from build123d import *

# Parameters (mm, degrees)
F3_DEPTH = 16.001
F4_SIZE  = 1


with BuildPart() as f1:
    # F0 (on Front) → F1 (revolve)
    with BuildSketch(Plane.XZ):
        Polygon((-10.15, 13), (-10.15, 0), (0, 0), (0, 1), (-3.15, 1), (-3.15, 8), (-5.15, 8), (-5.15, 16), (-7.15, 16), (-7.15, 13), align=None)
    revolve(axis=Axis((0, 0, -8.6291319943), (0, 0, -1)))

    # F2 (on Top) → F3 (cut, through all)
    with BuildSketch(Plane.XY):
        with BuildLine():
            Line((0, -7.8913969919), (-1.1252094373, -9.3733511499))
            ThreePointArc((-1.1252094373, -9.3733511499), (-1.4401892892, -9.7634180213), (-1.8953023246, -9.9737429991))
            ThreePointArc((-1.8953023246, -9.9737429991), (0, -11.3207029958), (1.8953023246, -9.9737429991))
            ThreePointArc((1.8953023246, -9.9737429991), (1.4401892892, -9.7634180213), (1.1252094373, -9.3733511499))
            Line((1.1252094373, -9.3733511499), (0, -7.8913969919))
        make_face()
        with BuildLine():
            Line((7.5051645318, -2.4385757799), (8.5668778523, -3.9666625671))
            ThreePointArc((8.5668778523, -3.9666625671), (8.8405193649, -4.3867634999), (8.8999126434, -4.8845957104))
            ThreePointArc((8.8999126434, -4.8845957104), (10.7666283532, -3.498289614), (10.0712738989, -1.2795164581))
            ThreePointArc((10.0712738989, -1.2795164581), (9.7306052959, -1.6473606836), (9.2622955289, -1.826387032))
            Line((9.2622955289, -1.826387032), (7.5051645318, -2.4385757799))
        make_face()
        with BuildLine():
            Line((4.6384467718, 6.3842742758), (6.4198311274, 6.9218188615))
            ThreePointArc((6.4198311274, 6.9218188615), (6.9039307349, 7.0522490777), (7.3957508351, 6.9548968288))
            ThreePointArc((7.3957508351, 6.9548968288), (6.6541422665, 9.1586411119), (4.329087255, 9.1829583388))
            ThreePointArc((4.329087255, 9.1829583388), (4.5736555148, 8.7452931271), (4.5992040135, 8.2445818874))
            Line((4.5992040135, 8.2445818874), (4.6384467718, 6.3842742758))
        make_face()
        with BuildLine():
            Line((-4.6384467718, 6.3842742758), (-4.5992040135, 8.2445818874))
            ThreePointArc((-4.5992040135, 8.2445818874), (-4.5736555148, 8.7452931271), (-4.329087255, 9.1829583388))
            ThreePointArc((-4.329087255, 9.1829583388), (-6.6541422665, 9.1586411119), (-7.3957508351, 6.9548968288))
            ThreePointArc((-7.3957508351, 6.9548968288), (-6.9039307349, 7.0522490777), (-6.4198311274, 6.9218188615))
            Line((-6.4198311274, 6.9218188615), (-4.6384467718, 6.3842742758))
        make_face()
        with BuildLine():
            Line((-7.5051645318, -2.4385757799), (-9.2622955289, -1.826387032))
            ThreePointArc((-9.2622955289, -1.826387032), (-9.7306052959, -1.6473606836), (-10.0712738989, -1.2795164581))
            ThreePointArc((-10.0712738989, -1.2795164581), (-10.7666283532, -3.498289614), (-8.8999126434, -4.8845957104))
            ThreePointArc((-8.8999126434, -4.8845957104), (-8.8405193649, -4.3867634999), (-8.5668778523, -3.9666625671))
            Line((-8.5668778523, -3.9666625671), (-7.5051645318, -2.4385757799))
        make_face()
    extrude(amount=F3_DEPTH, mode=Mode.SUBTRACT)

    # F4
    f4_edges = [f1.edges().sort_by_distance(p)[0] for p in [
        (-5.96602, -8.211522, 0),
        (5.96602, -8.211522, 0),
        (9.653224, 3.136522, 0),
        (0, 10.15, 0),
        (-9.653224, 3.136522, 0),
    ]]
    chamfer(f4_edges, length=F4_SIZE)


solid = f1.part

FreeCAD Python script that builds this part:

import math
import FreeCAD as App
import Part
import Sketcher
from FreeCAD import Vector
Q = App.Units.Quantity


def edges_at(feature, points):
    """Names of the edges that pass closest to the given points."""
    edges = feature.Shape.Edges
    near = lambda p: min(range(len(edges)), key=lambda i: edges[i].distToShape(Part.Vertex(*p))[0])
    return sorted({f"Edge{near(p) + 1}" for p in points})


def add_polygon(sketch, points):
    """Adds a closed chain of lines whose ends are joined by coincident constraints."""
    first, n = sketch.GeometryCount, len(points)
    for a, b in zip(points, points[1:] + points[:1]):
        sketch.addGeometry(Part.LineSegment(App.Vector(*a, 0), App.Vector(*b, 0)), False)
    for i in range(n):
        sketch.addConstraint(Sketcher.Constraint("Coincident", first + i, 2, first + (i + 1) % n, 1))

doc = App.newDocument("Part")
body = doc.addObject("PartDesign::Body", "Body")

# Sketch on XZ plane
sketch1 = doc.addObject("Sketcher::SketchObject", "Sketch")
body.addObject(sketch1)
sketch1.AttachmentSupport = (doc.XZ_Plane, [""])
sketch1.MapMode = "FlatFace"
add_polygon(sketch1, [(-10.2, 13), (-10.2, 0), (0, 0), (0, 1), (-3.1, 1), (-3.1, 8), (-5.2, 8), (-5.2, 16), (-7.2, 16), (-7.2, 13)])  # lines 0-9
sketch1.addConstraint([
    Sketcher.Constraint("Vertical", 0),
    Sketcher.Constraint("Horizontal", 1),
    Sketcher.Constraint("Vertical", 2),
    Sketcher.Constraint("Horizontal", 3),
    Sketcher.Constraint("Vertical", 4),
    Sketcher.Constraint("Horizontal", 5),
    Sketcher.Constraint("Vertical", 6),
    Sketcher.Constraint("Horizontal", 7),
    Sketcher.Constraint("Vertical", 8),
    Sketcher.Constraint("Horizontal", 9),
    Sketcher.Constraint("Coincident", 1, 2, -1, 1),
    Sketcher.Constraint("Equal", 5, 7),
    Sketcher.Constraint("Equal", 9, 8),
    Sketcher.Constraint("DistanceX", 5, 2, 5, 1, Q("2 mm")),
    Sketcher.Constraint("DistanceX", 9, 2, 9, 1, Q("3 mm")),
    Sketcher.Constraint("DistanceY", 0, 2, 0, 1, Q("13 mm")),
    Sketcher.Constraint("DistanceY", 2, 1, 2, 2, Q("1 mm")),
    Sketcher.Constraint("DistanceY", 4, 1, 4, 2, Q("7 mm")),
    Sketcher.Constraint("DistanceX", 1, 1, 1, 2, Q("10.15 mm")),
])
revolution = doc.addObject("PartDesign::Revolution", "Revolution")
body.addObject(revolution)
revolution.Profile = sketch1
revolution.ReferenceAxis = (sketch1, ["V_Axis"])
revolution.Angle = 360

# Sketch on XY plane
sketch2 = doc.addObject("Sketcher::SketchObject", "Sketch001")
body.addObject(sketch2)
sketch2.AttachmentSupport = (doc.XY_Plane, [""])
sketch2.MapMode = "FlatFace"
sketch2.addGeometry([
    Part.LineSegment(Vector(0, -7.9, 0), Vector(-1.1, -9.4, 0)),  # 0
    Part.ArcOfCircle(Part.Circle(Vector(-2.1, -8.9, 0), Vector(0, 0, 1), 1.1), math.radians(-78), math.radians(-26)),  # 1
    Part.ArcOfCircle(Part.Circle(Vector(0, -9.3, 0), Vector(0, 0, 1), 2), math.radians(-161), math.radians(-19)),  # 2
    Part.ArcOfCircle(Part.Circle(Vector(2.1, -8.9, 0), Vector(0, 0, 1), 1.1), math.radians(-154), math.radians(-102)),  # 3
    Part.LineSegment(Vector(1.1, -9.4, 0), Vector(0, -7.9, 0)),  # 4
    Part.LineSegment(Vector(7.5, -2.4, 0), Vector(8.6, -4, 0)),  # 5
    Part.ArcOfCircle(Part.Circle(Vector(7.8, -4.8, 0), Vector(0, 0, 1), 1.1), math.radians(-6), math.radians(46)),  # 6
    Part.ArcOfCircle(Part.Circle(Vector(8.9, -2.9, 0), Vector(0, 0, 1), 2), math.radians(-89), math.radians(53)),  # 7
    Part.ArcOfCircle(Part.Circle(Vector(9.1, -0.7, 0), Vector(0, 0, 1), 1.1), math.radians(-82), math.radians(-30)),  # 8
    Part.LineSegment(Vector(9.3, -1.8, 0), Vector(7.5, -2.4, 0)),  # 9
    Part.LineSegment(Vector(4.6, 6.4, 0), Vector(6.4, 6.9, 0)),  # 10
    Part.ArcOfCircle(Part.Circle(Vector(6.9, 5.9, 0), Vector(0, 0, 1), 1.1), math.radians(66), math.radians(118)),  # 11
    Part.ArcOfCircle(Part.Circle(Vector(5.5, 7.5, 0), Vector(0, 0, 1), 2), math.radians(-17), math.radians(125)),  # 12
    Part.ArcOfCircle(Part.Circle(Vector(3.5, 8.4, 0), Vector(0, 0, 1), 1.1), math.radians(-10), math.radians(42)),  # 13
    Part.LineSegment(Vector(4.6, 8.2, 0), Vector(4.6, 6.4, 0)),  # 14
    Part.LineSegment(Vector(-4.6, 6.4, 0), Vector(-4.6, 8.2, 0)),  # 15
    Part.ArcOfCircle(Part.Circle(Vector(-3.5, 8.4, 0), Vector(0, 0, 1), 1.1), math.radians(138), math.radians(190)),  # 16
    Part.ArcOfCircle(Part.Circle(Vector(-5.5, 7.5, 0), Vector(0, 0, 1), 2), math.radians(55), math.radians(197)),  # 17
    Part.ArcOfCircle(Part.Circle(Vector(-6.9, 5.9, 0), Vector(0, 0, 1), 1.1), math.radians(62), math.radians(114)),  # 18
    Part.LineSegment(Vector(-6.4, 6.9, 0), Vector(-4.6, 6.4, 0)),  # 19
    Part.LineSegment(Vector(-7.5, -2.4, 0), Vector(-9.3, -1.8, 0)),  # 20
    Part.ArcOfCircle(Part.Circle(Vector(-9.1, -0.7, 0), Vector(0, 0, 1), 1.1), math.radians(-150), math.radians(-98)),  # 21
    Part.ArcOfCircle(Part.Circle(Vector(-8.9, -2.9, 0), Vector(0, 0, 1), 2), math.radians(127), math.radians(269)),  # 22
    Part.ArcOfCircle(Part.Circle(Vector(-7.8, -4.8, 0), Vector(0, 0, 1), 1.1), math.radians(134), math.radians(186)),  # 23
    Part.LineSegment(Vector(-8.6, -4, 0), Vector(-7.5, -2.4, 0)),  # 24
], False)
sketch2.addConstraint([
    Sketcher.Constraint("Coincident", 0, 2, 1, 2),
    Sketcher.Constraint("Coincident", 1, 1, 2, 1),
    Sketcher.Constraint("Coincident", 2, 2, 3, 2),
    Sketcher.Constraint("Coincident", 3, 1, 4, 1),
    Sketcher.Constraint("Coincident", 4, 2, 0, 1),
    Sketcher.Constraint("Coincident", 5, 2, 6, 2),
    Sketcher.Constraint("Coincident", 6, 1, 7, 1),
    Sketcher.Constraint("Coincident", 7, 2, 8, 2),
    Sketcher.Constraint("Coincident", 8, 1, 9, 1),
    Sketcher.Constraint("Coincident", 9, 2, 5, 1),
    Sketcher.Constraint("Coincident", 10, 2, 11, 2),
    Sketcher.Constraint("Coincident", 11, 1, 12, 1),
    Sketcher.Constraint("Coincident", 12, 2, 13, 2),
    Sketcher.Constraint("Coincident", 13, 1, 14, 1),
    Sketcher.Constraint("Coincident", 14, 2, 10, 1),
    Sketcher.Constraint("Coincident", 15, 2, 16, 2),
    Sketcher.Constraint("Coincident", 16, 1, 17, 1),
    Sketcher.Constraint("Coincident", 17, 2, 18, 2),
    Sketcher.Constraint("Coincident", 18, 1, 19, 1),
    Sketcher.Constraint("Coincident", 19, 2, 15, 1),
    Sketcher.Constraint("Coincident", 20, 2, 21, 2),
    Sketcher.Constraint("Coincident", 21, 1, 22, 1),
    Sketcher.Constraint("Coincident", 22, 2, 23, 2),
    Sketcher.Constraint("Coincident", 23, 1, 24, 1),
    Sketcher.Constraint("Coincident", 24, 2, 20, 1),
    Sketcher.Constraint("Equal", 1, 3),
    Sketcher.Constraint("Equal", 3, 6),
    Sketcher.Constraint("Equal", 2, 7),
    Sketcher.Constraint("Equal", 6, 8),
    Sketcher.Constraint("Equal", 8, 11),
    Sketcher.Constraint("Equal", 7, 12),
    Sketcher.Constraint("Equal", 11, 13),
    Sketcher.Constraint("Equal", 13, 16),
    Sketcher.Constraint("Equal", 12, 17),
    Sketcher.Constraint("Equal", 16, 18),
    Sketcher.Constraint("Equal", 18, 21),
    Sketcher.Constraint("Equal", 17, 22),
    Sketcher.Constraint("Equal", 21, 23),
    Sketcher.Constraint("Symmetric", 1, 3, 3, 3, -2),
    Sketcher.Constraint("Symmetric", 13, 3, 16, 3, -2),
    Sketcher.Constraint("Symmetric", 12, 3, 17, 3, -2),
    Sketcher.Constraint("Symmetric", 11, 3, 18, 3, -2),
    Sketcher.Constraint("Symmetric", 8, 3, 21, 3, -2),
    Sketcher.Constraint("Symmetric", 7, 3, 22, 3, -2),
    Sketcher.Constraint("Symmetric", 6, 3, 23, 3, -2),
    Sketcher.Constraint("Symmetric", 14, 2, 19, 2, -2),
    Sketcher.Constraint("Symmetric", 9, 2, 24, 2, -2),
    Sketcher.Constraint("PointOnObject", 2, 3, -2),
    Sketcher.Constraint("PointOnObject", 4, 2, -2),
    Sketcher.Constraint("Horizontal", 0, 2, 3, 1),
    Sketcher.Constraint("Horizontal", 13, 1, 15, 2),
    Sketcher.Constraint("Horizontal", 10, 2, 18, 1),
    Sketcher.Constraint("Horizontal", 8, 1, 20, 2),
    Sketcher.Constraint("Horizontal", 5, 2, 23, 1),
    Sketcher.Constraint("Equal", 4, 5),
    Sketcher.Constraint("Equal", 5, 9),
    Sketcher.Constraint("Equal", 9, 10),
    Sketcher.Constraint("Equal", 10, 14),
    Sketcher.Constraint("Radius", 1, Q("1.102895 mm")),
    Sketcher.Constraint("Radius", 2, Q("2.006916 mm")),
    Sketcher.Constraint("DistanceX", 7, 3, 8, 3, Q("0.254999 mm")),
    Sketcher.Constraint("DistanceX", 15, 2, 13, 3, Q("8.113001 mm")),
    Sketcher.Constraint("DistanceY", 6, 3, 11, 3, Q("10.7129 mm")),
    Sketcher.Constraint("DistanceX", 3, 3, 12, 3, Q("3.356199 mm")),
    Sketcher.Constraint("DistanceX", 1, 3, 0, 2, Q("0.993098 mm")),
    Sketcher.Constraint("DistanceY", 7, 3, 7, 2, Q("1.598602 mm")),
    Sketcher.Constraint("Distance", 0, Q("1.860721 mm")),
    Sketcher.Constraint("DistanceY", 1, 3, -1, 1, Q("8.893629 mm")),
    Sketcher.Constraint("DistanceX", -1, 1, 6, 3, Q("7.803751 mm")),
    Sketcher.Constraint("DistanceY", 7, 3, -1, 1, Q("2.878118 mm")),
    Sketcher.Constraint("DistanceX", -1, 1, 11, 3, Q("6.941291 mm")),
    Sketcher.Constraint("DistanceY", -1, 1, 12, 3, Q("7.535012 mm")),
    Sketcher.Constraint("DistanceX", 0, 2, -1, 1, Q("1.125209 mm")),
    Sketcher.Constraint("DistanceX", -1, 1, 10, 2, Q("6.419831 mm")),
    Sketcher.Constraint("DistanceY", -1, 1, 10, 2, Q("6.921819 mm")),
    Sketcher.Constraint("DistanceY", -1, 1, 12, 2, Q("9.182958 mm")),
    Sketcher.Constraint("DistanceY", -1, 1, 13, 1, Q("8.244582 mm")),
    Sketcher.Constraint("DistanceX", 3, 3, 7, 3, Q("6.73963 mm")),
    Sketcher.Constraint("DistanceY", 2, 3, 7, 3, Q("6.435668 mm")),
    Sketcher.Constraint("DistanceY", 6, 3, 5, 2, Q("0.79625 mm")),
    Sketcher.Constraint("DistanceX", 8, 1, 7, 2, Q("0.808978 mm")),
])
pocket1 = doc.addObject("PartDesign::Pocket", "Pocket")
body.addObject(pocket1)
pocket1.Profile = sketch2
pocket1.Type = "ThroughAll"
pocket1.Reversed = True
doc.recompute()

chamfer = doc.addObject("PartDesign::Chamfer", "Chamfer")
body.addObject(chamfer)
chamfer.Base = (pocket1, edges_at(pocket1, [
    (-5.966, -8.212, 0),
    (5.966, -8.212, 0),
    (9.653, 3.137, 0),
    (0, 10.15, 0),
    (-9.653, 3.137, 0),
]))
chamfer.Size = 1

doc.recompute()
